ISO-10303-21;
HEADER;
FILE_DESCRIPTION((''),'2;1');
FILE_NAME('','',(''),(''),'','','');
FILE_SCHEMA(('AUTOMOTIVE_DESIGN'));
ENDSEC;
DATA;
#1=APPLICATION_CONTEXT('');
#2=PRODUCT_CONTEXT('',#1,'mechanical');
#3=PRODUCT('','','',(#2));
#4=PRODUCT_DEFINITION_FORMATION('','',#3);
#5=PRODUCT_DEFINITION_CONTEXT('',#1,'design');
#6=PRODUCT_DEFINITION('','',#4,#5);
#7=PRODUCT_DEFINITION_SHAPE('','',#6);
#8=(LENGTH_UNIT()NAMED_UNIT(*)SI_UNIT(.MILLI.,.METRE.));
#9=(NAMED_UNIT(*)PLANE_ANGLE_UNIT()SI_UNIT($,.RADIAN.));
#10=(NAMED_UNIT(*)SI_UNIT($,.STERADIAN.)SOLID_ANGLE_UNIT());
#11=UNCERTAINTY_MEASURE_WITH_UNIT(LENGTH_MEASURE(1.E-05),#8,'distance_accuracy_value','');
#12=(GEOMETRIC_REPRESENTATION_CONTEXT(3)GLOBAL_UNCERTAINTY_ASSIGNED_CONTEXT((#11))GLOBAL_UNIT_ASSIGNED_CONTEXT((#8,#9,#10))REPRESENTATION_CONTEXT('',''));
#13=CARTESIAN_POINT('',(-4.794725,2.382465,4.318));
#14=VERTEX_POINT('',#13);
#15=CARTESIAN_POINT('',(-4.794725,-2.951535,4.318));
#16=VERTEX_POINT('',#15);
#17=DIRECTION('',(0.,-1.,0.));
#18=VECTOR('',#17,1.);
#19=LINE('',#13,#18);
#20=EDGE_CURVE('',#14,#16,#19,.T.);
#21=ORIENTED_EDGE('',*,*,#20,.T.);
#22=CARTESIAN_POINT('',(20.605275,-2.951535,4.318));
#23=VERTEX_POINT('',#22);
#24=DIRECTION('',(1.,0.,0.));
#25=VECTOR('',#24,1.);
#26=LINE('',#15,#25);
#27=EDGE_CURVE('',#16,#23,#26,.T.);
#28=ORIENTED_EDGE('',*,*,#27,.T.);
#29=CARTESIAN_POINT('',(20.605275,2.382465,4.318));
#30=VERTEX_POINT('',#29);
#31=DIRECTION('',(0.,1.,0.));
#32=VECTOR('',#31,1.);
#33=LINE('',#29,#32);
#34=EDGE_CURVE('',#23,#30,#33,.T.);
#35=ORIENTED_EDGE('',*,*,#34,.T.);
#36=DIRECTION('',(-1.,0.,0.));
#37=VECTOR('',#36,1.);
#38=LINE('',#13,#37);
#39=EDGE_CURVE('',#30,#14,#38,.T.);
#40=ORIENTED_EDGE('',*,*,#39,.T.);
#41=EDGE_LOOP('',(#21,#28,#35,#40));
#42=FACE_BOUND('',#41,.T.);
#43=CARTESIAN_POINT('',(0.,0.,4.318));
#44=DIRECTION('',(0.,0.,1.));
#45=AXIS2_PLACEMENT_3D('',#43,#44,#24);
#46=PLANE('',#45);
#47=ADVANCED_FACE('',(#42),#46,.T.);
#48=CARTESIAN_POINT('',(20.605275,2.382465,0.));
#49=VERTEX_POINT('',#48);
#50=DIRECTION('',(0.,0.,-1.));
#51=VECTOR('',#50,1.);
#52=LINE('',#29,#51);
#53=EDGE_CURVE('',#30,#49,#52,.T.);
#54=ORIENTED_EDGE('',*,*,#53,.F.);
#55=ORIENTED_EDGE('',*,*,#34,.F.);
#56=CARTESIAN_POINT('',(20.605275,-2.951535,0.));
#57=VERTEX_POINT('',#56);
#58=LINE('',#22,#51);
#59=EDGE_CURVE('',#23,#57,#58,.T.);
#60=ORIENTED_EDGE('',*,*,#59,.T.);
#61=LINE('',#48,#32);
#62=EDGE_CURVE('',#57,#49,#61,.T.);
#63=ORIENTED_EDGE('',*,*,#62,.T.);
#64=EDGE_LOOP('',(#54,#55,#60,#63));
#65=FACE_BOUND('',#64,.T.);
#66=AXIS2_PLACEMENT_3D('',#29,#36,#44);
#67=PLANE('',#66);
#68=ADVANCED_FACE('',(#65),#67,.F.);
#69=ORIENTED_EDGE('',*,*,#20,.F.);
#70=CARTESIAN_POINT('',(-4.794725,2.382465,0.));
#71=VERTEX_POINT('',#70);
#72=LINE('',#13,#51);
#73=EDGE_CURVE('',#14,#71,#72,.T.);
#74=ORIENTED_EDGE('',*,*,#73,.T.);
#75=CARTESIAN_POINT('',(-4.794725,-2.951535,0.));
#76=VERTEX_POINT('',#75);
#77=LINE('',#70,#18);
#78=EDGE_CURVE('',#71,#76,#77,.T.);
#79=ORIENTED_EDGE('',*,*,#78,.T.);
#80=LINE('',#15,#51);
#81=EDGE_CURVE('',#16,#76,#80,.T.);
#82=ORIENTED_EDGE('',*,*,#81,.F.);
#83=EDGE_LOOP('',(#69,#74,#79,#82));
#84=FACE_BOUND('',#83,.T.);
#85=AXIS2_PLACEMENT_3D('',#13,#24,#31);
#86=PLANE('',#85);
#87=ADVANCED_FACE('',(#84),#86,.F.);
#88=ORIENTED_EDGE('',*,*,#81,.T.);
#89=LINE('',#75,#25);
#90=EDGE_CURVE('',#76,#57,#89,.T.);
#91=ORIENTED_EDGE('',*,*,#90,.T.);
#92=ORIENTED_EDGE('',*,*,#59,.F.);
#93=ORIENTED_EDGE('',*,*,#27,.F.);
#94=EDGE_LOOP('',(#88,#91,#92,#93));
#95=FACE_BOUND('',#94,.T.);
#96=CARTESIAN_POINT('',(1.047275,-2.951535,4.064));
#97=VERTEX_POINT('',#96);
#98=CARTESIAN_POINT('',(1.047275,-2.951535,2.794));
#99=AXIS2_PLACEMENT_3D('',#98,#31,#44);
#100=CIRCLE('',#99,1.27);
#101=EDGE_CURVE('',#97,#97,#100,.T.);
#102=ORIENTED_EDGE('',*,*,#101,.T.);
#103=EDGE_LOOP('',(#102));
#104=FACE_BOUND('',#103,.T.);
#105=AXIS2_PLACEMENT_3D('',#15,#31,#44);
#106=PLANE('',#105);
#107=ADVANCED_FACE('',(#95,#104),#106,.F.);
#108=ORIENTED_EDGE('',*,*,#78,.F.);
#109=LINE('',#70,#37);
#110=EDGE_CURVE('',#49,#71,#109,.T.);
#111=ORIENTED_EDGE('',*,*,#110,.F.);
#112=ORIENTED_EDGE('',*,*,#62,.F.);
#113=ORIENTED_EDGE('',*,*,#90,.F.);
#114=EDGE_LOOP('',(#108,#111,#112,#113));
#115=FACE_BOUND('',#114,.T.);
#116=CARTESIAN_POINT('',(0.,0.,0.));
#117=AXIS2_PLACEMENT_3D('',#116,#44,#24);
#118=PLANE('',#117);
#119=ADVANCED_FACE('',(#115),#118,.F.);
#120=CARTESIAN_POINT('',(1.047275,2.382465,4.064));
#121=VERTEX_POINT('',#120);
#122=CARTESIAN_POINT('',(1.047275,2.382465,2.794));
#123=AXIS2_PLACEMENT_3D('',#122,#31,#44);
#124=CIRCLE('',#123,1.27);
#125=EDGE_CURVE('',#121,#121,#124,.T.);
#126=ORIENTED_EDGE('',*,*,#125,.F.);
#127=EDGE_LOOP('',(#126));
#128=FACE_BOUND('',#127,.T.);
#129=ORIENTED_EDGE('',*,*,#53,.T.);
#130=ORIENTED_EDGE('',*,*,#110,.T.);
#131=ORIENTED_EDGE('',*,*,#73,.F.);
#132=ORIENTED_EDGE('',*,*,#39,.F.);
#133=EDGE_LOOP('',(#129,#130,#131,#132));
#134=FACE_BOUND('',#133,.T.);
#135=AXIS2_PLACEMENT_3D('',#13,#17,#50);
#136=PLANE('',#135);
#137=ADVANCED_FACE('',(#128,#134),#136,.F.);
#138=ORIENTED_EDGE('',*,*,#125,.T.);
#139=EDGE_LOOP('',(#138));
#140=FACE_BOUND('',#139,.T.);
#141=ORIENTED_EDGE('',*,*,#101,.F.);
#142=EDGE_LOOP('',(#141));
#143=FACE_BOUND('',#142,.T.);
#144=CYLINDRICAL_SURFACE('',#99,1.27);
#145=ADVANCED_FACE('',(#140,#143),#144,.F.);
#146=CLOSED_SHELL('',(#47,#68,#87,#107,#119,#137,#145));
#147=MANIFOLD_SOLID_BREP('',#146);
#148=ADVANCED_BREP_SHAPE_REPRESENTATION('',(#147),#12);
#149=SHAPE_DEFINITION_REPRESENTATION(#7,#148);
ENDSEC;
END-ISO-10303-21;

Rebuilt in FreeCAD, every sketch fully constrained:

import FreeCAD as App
import Part
import Sketcher
Q = App.Units.Quantity

doc = App.newDocument("Part")
body = doc.addObject("PartDesign::Body", "Body")

# Sketch on XY plane
sketch1 = body.newObject("Sketcher::SketchObject", "Sketch")
sketch1.AttachmentSupport = (doc.getObject("XY_Plane"), [""])
sketch1.MapMode = "FlatFace"
sketch1.addGeometry(Part.LineSegment(App.Vector(-5, 2, 0), App.Vector(-5, -3, 0)), False)
sketch1.addGeometry(Part.LineSegment(App.Vector(-5, -3, 0), App.Vector(21, -3, 0)), False)
sketch1.addGeometry(Part.LineSegment(App.Vector(21, -3, 0), App.Vector(21, 2, 0)), False)
sketch1.addGeometry(Part.LineSegment(App.Vector(21, 2, 0), App.Vector(-5, 2, 0)), False)
sketch1.addConstraint(Sketcher.Constraint("Coincident", 0, 2, 1, 1))
sketch1.addConstraint(Sketcher.Constraint("Coincident", 1, 2, 2, 1))
sketch1.addConstraint(Sketcher.Constraint("Coincident", 2, 2, 3, 1))
sketch1.addConstraint(Sketcher.Constraint("Coincident", 3, 2, 0, 1))
sketch1.addConstraint(Sketcher.Constraint("Vertical", 0))
sketch1.addConstraint(Sketcher.Constraint("Horizontal", 1))
sketch1.addConstraint(Sketcher.Constraint("Vertical", 2))
sketch1.addConstraint(Sketcher.Constraint("Horizontal", 3))
sketch1.addConstraint(Sketcher.Constraint("DistanceX", 1, 1, 1, 2, Q("1 in")))
sketch1.addConstraint(Sketcher.Constraint("DistanceY", 0, 2, 0, 1, Q("0.21 in")))
sketch1.addConstraint(Sketcher.Constraint("DistanceX", 0, 2, -1, 1, Q("4.794725 mm")))
sketch1.addConstraint(Sketcher.Constraint("DistanceY", 0, 2, -1, 1, Q("2.951535 mm")))
pad1 = body.newObject("PartDesign::Pad", "Pad")
pad1.Profile = sketch1
pad1.Length = Q("0.17 in")

# Sketch on XZ plane
sketch2 = body.newObject("Sketcher::SketchObject", "Sketch001")
sketch2.AttachmentSupport = (doc.getObject("XZ_Plane"), [""])
sketch2.MapMode = "FlatFace"
sketch2.AttachmentOffset = App.Placement(App.Vector(0, 0, -2.382465), App.Rotation())
sketch2.addGeometry(Part.Circle(App.Vector(1, 2.8, 0), App.Vector(0, 0, 1), 1.3), False)
sketch2.addConstraint(Sketcher.Constraint("Diameter", 0, Q("0.1 in")))
sketch2.addConstraint(Sketcher.Constraint("DistanceY", -1, 1, 0, 3, Q("0.11 in")))
sketch2.addConstraint(Sketcher.Constraint("DistanceX", -1, 1, 0, 3, Q("1.047275 mm")))
pocket1 = body.newObject("PartDesign::Pocket", "Pocket")
pocket1.Profile = sketch2
pocket1.Type = "ThroughAll"
pocket1.Reversed = True

doc.recompute()
